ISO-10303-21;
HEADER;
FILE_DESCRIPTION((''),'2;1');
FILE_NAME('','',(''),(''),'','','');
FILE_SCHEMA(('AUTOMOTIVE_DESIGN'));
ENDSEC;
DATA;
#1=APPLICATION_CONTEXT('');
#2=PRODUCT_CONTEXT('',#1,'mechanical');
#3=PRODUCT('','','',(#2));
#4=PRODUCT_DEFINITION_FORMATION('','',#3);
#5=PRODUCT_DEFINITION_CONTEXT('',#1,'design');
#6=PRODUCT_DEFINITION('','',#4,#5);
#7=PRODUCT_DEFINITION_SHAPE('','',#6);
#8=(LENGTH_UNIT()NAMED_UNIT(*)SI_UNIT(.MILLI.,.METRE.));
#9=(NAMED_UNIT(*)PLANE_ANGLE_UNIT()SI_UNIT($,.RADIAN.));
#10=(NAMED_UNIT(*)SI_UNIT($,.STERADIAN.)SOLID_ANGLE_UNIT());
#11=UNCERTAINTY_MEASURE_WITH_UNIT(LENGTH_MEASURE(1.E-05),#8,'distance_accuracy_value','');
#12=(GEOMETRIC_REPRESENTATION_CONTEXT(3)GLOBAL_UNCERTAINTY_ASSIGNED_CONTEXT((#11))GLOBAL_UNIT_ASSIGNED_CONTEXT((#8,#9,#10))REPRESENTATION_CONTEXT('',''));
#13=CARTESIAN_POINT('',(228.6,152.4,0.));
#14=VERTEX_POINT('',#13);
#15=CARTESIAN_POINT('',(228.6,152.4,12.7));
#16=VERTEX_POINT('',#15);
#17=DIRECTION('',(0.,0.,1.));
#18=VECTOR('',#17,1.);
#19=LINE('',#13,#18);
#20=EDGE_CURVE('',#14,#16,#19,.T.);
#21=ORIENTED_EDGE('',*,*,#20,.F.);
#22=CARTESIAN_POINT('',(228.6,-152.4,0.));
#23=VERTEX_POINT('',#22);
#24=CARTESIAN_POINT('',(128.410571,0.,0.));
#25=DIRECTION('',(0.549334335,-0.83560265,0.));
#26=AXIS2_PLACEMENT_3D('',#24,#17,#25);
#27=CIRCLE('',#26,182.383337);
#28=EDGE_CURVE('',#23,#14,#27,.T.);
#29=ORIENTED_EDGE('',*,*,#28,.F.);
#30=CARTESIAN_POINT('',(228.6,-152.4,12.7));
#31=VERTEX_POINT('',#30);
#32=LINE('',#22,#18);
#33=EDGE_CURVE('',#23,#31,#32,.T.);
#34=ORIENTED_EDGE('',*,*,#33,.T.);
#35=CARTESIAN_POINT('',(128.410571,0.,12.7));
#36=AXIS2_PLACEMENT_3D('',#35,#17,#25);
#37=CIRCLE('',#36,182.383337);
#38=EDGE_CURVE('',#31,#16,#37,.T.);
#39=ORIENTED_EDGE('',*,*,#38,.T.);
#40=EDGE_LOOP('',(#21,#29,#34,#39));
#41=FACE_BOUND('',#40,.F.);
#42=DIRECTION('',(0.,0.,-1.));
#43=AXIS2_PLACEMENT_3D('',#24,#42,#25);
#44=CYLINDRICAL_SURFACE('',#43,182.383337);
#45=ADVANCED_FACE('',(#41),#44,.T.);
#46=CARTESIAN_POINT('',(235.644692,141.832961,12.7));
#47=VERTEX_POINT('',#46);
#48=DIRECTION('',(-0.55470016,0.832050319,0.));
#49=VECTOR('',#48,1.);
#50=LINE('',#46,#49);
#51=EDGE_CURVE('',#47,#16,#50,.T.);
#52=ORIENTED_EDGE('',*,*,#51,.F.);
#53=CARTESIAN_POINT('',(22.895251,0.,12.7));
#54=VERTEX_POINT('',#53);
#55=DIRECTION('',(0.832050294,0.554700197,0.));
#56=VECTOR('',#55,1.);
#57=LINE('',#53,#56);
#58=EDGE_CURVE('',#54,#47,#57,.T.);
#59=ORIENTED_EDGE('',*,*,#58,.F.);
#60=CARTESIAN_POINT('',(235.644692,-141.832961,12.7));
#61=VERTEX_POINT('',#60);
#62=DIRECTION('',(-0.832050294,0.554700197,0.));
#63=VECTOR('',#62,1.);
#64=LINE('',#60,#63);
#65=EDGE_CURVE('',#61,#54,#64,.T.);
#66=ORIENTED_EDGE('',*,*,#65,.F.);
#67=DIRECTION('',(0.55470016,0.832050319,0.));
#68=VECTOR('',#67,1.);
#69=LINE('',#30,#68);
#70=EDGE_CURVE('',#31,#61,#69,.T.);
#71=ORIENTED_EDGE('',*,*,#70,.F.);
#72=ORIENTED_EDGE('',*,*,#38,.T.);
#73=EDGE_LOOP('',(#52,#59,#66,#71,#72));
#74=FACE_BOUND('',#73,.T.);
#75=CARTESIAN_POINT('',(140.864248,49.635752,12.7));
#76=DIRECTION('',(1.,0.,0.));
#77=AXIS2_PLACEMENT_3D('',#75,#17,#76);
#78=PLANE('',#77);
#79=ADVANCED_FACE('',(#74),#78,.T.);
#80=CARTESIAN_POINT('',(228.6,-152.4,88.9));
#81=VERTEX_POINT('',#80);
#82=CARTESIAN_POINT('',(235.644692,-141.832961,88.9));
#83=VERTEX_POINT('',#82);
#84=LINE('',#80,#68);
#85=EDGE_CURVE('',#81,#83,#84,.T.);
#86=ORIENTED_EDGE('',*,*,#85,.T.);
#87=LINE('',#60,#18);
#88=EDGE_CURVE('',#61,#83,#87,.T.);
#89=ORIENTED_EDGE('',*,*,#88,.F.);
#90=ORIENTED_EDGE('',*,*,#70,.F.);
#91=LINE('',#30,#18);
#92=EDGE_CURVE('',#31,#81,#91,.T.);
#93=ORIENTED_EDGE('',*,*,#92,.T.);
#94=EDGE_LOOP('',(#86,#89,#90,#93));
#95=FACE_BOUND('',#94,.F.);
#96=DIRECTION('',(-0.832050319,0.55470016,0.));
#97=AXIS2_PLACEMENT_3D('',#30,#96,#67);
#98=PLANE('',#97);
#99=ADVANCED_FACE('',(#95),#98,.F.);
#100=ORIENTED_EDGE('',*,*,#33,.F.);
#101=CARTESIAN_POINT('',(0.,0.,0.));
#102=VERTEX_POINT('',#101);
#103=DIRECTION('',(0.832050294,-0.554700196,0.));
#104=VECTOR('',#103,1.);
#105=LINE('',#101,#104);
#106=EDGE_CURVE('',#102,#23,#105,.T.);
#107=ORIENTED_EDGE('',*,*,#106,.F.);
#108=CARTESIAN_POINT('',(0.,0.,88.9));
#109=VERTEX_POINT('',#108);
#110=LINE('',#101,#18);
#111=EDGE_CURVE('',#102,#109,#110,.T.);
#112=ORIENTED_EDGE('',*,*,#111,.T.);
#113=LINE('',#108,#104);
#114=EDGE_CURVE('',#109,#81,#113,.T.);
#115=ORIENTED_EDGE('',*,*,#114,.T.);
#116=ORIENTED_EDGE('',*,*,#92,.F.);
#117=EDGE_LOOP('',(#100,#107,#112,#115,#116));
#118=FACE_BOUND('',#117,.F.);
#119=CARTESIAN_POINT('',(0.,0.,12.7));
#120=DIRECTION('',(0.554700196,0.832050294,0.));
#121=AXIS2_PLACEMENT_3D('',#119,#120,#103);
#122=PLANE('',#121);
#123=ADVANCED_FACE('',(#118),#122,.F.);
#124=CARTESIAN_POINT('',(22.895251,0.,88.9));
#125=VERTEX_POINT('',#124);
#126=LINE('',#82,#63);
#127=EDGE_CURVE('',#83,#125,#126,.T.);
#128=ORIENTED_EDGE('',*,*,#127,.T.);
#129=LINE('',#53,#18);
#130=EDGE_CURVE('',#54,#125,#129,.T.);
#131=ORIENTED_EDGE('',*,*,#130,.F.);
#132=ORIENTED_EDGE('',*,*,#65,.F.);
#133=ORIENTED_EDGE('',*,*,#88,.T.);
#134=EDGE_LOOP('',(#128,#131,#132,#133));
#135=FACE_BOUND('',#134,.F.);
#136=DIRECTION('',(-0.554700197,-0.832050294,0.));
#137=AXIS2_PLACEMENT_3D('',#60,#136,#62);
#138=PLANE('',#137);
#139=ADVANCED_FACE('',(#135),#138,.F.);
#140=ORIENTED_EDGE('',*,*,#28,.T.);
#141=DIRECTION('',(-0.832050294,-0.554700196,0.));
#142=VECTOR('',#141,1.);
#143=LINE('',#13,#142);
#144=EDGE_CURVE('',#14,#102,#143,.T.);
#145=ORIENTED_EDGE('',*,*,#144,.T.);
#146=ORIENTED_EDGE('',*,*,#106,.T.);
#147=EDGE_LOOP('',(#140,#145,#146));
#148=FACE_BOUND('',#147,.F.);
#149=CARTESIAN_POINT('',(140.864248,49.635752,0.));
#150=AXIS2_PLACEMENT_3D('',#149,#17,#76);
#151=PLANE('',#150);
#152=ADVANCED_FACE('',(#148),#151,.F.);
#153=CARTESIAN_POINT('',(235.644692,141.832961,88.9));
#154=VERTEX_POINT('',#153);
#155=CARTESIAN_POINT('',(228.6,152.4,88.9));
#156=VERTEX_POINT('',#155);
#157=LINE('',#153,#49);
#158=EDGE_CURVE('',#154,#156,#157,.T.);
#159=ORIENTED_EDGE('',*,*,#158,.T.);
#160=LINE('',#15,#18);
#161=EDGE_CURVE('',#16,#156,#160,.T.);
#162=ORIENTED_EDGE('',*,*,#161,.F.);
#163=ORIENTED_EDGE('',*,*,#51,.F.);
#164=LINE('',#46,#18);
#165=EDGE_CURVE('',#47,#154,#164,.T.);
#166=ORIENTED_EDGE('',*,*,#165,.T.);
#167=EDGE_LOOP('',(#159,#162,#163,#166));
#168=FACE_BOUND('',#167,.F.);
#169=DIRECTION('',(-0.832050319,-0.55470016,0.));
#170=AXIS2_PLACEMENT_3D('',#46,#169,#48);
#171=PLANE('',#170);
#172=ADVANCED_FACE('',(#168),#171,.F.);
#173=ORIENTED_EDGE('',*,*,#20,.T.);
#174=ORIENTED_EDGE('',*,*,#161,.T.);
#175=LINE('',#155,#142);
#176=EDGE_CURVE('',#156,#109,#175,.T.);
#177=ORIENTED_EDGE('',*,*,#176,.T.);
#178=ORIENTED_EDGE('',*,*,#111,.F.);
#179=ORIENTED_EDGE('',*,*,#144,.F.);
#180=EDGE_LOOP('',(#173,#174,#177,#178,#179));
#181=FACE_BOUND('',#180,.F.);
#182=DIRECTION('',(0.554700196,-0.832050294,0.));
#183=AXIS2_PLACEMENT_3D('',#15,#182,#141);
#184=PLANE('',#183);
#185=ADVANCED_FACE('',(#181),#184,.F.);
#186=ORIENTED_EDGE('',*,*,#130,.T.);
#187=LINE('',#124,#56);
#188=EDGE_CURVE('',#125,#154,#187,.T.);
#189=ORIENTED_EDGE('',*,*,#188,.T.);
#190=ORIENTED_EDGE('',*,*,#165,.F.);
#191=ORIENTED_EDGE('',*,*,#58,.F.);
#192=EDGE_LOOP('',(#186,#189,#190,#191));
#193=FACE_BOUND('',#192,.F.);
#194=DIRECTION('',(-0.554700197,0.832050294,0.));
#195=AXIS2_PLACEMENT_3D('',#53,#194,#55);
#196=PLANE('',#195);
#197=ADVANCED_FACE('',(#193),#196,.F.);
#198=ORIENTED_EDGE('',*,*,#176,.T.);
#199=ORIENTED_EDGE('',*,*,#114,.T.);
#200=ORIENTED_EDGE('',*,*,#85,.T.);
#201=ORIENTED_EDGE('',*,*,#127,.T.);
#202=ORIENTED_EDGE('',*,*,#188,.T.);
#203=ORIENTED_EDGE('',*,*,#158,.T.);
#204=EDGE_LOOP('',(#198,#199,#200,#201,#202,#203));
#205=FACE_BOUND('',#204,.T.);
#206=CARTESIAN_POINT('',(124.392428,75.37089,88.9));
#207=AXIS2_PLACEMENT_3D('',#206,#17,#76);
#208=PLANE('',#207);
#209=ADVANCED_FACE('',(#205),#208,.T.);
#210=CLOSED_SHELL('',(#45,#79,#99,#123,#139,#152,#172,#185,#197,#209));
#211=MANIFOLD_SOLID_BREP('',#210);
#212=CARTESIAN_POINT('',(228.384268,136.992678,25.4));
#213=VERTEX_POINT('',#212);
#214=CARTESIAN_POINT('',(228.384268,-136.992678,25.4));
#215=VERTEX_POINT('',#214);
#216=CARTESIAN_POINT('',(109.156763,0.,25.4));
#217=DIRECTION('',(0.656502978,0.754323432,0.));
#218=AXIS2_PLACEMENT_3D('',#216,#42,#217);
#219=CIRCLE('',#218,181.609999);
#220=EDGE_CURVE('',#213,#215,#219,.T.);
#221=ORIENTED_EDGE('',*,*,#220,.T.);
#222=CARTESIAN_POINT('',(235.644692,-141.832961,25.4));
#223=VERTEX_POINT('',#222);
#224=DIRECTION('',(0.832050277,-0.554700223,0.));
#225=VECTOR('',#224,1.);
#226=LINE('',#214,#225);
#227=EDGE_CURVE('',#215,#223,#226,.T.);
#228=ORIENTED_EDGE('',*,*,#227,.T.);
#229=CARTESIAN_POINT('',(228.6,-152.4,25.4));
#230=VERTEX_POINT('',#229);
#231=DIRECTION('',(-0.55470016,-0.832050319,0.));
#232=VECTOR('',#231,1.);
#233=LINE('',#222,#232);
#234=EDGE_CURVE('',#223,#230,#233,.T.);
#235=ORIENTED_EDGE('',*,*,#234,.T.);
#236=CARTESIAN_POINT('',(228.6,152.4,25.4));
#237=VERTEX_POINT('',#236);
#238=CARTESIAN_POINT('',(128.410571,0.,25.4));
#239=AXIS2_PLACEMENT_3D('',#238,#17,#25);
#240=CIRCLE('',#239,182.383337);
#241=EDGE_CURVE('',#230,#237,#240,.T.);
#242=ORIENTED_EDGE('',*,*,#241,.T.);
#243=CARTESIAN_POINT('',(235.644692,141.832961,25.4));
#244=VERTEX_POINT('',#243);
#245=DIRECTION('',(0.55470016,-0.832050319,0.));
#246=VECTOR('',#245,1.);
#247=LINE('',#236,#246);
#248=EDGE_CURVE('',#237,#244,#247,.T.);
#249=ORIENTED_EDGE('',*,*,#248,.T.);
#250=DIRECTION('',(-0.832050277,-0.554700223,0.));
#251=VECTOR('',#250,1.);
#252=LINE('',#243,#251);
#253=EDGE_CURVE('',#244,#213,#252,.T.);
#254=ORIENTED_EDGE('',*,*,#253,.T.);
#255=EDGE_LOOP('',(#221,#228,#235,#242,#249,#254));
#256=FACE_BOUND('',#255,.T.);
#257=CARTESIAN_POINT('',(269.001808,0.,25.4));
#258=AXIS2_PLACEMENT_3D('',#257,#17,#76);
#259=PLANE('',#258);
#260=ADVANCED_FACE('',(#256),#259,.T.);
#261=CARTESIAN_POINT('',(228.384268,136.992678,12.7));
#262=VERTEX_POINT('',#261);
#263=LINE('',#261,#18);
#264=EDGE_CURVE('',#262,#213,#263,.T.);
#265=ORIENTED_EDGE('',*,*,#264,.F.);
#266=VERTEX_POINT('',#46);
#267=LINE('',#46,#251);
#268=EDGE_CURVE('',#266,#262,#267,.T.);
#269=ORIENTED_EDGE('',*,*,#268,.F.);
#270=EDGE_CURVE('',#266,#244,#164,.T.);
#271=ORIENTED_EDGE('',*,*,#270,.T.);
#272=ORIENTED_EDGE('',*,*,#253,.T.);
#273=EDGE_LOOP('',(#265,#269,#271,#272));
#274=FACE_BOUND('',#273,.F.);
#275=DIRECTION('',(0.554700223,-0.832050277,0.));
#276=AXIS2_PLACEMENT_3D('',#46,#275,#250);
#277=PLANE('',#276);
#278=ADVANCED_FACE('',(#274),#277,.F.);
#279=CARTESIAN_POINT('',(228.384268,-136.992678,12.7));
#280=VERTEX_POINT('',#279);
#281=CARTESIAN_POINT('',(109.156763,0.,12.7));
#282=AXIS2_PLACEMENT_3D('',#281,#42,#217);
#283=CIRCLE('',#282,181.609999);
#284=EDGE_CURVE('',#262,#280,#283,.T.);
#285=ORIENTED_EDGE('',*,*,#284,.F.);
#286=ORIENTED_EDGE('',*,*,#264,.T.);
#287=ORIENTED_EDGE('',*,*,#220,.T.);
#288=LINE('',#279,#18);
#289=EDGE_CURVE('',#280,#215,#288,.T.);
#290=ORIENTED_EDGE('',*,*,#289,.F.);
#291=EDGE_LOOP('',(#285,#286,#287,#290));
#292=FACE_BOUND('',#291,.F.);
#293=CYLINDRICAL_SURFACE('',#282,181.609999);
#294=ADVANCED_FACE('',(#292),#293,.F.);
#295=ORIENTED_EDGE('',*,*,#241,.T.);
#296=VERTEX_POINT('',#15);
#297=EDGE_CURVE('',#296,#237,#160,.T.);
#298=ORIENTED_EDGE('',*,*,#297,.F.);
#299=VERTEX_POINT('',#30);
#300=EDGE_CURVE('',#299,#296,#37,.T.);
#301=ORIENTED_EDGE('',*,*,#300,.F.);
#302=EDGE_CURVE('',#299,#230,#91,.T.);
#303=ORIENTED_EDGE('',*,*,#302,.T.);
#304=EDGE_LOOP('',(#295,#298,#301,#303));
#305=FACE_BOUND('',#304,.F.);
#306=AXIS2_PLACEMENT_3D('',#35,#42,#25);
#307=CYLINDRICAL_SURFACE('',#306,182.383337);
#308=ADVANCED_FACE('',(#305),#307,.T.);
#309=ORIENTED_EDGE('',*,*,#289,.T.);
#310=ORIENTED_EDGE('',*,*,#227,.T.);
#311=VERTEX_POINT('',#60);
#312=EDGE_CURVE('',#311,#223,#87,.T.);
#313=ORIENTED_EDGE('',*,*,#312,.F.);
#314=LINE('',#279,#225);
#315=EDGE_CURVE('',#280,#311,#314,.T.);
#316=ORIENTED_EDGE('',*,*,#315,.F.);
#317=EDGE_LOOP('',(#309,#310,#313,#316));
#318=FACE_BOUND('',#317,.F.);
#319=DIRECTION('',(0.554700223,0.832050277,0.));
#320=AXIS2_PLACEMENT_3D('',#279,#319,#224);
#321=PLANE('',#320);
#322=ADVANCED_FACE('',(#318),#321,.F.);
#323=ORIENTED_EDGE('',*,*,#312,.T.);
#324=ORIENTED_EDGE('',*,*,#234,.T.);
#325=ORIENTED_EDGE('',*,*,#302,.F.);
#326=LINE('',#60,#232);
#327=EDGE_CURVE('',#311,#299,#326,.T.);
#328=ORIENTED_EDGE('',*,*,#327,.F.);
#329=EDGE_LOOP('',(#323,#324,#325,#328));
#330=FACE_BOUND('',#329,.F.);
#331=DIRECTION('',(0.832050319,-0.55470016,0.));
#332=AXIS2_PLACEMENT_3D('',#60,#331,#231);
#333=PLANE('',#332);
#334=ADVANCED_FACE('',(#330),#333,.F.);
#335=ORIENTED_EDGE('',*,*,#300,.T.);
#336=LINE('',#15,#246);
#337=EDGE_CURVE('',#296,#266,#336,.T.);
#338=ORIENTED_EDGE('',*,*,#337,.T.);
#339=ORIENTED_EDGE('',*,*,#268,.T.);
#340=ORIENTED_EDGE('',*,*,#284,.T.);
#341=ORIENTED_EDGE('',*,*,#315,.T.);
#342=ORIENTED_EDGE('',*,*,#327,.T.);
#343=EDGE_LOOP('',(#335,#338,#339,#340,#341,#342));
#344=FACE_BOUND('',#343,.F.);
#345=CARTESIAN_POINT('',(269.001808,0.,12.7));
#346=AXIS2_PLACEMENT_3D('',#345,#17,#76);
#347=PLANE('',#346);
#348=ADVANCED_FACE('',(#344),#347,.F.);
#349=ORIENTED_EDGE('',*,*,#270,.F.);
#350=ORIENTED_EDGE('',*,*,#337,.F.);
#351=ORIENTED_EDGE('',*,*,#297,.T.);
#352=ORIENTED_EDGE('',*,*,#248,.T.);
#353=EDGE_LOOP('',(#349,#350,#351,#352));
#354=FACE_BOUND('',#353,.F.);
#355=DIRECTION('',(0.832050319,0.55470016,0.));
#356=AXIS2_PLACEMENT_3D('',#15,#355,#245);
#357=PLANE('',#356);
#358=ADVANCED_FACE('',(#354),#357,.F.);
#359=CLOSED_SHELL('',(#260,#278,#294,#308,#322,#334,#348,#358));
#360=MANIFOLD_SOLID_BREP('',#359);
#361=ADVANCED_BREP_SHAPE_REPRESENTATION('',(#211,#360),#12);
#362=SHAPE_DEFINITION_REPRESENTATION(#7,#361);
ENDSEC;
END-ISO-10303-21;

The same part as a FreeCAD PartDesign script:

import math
import FreeCAD as App
import Part
import Sketcher

V = App.Vector
Q = App.Units.Quantity


def add_polygon(sketch, points):
    """Adds a closed chain of lines whose ends are joined by coincident constraints."""
    first, n = sketch.GeometryCount, len(points)
    for a, b in zip(points, points[1:] + points[:1]):
        sketch.addGeometry(Part.LineSegment(App.Vector(*a, 0), App.Vector(*b, 0)), False)
    for i in range(n):
        sketch.addConstraint(Sketcher.Constraint("Coincident", first + i, 2, first + (i + 1) % n, 1))

doc = App.newDocument("Part")
body = doc.addObject("PartDesign::Body", "Body")

# Sketch on XY plane
sketch1 = body.newObject("Sketcher::SketchObject", "Sketch")
sketch1.AttachmentSupport = (doc.getObject("XY_Plane"), [""])
sketch1.MapMode = "FlatFace"
sketch1.addGeometry([
    Part.LineSegment(V(229, 152, 0), V(0, 0, 0)),
    Part.LineSegment(V(0, 0, 0), V(229, -152, 0)),
    Part.ArcOfCircle(Part.Circle(V(128, 0, 0), V(0, 0, 1), 182), math.radians(-57), math.radians(57)),
], False)
sketch1.addConstraint([
    Sketcher.Constraint("Coincident", 0, 2, 1, 1),
    Sketcher.Constraint("Coincident", 1, 2, 2, 1),
    Sketcher.Constraint("Coincident", 2, 2, 0, 1),
    Sketcher.Constraint("Coincident", 0, 2, -1, 1),
    Sketcher.Constraint("Symmetric", 1, 2, 2, 2, -1),
    Sketcher.Constraint("DistanceX", -1, 1, 1, 2, Q("9 in")),
    Sketcher.Constraint("DistanceY", 1, 2, -1, 1, Q("6 in")),
    Sketcher.Constraint("Radius", 2, Q("182.383337 mm")),
])
pad1 = body.newObject("PartDesign::Pad", "Pad")
pad1.Profile = sketch1
pad1.Length = Q("0.5 in")

# Sketch on XY plane
sketch2 = body.newObject("Sketcher::SketchObject", "Sketch001")
sketch2.AttachmentSupport = (doc.getObject("XY_Plane"), [""])
sketch2.MapMode = "FlatFace"
sketch2.AttachmentOffset = App.Placement(V(0, 0, 0.5 * 25.4), App.Rotation())
add_polygon(sketch2, [(236, 142), (229, 152), (0, 0), (229, -152), (236, -142), (23, 0)])  # lines 0-5
sketch2.addConstraint([
    Sketcher.Constraint("Coincident", 1, 2, -1, 1),
    Sketcher.Constraint("Symmetric", 0, 2, 2, 2, -1),
    Sketcher.Constraint("Symmetric", 3, 2, 5, 2, -1),
    Sketcher.Constraint("PointOnObject", 4, 2, -1),
    Sketcher.Constraint("Perpendicular", 0, 1),
    Sketcher.Constraint("Perpendicular", 3, 4),
    Sketcher.Constraint("DistanceX", -1, 1, 0, 2, Q("9 in")),
    Sketcher.Constraint("DistanceY", -1, 1, 0, 2, Q("6 in")),
    Sketcher.Constraint("Distance", 0, Q("0.5 in")),
])
pad2 = body.newObject("PartDesign::Pad", "Pad001")
pad2.Profile = sketch2
pad2.Length = Q("3 in")
body2 = doc.addObject("PartDesign::Body", "Body001")

# Sketch on XY plane
sketch3 = body2.newObject("Sketcher::SketchObject", "Sketch002")
sketch3.AttachmentSupport = (doc.getObject("XY_Plane001"), [""])
sketch3.MapMode = "FlatFace"
sketch3.AttachmentOffset = App.Placement(V(0, 0, 0.5 * 25.4), App.Rotation())
sketch3.addGeometry([
    Part.LineSegment(V(236, -142, 0), V(229, -152, 0)),  # 0
    Part.ArcOfCircle(Part.Circle(V(128, 0, 0), V(0, 0, 1), 182), math.radians(-57), math.radians(57)),  # 1
    Part.LineSegment(V(229, 152, 0), V(236, 142, 0)),  # 2
    Part.LineSegment(V(236, 142, 0), V(228, 137, 0)),  # 3
    Part.ArcOfCircle(Part.Circle(V(109, 0, 0), V(0, 0, 1), 182), math.radians(-49), math.radians(49)),  # 4
    Part.LineSegment(V(228, -137, 0), V(236, -142, 0)),  # 5
], False)
sketch3.addConstraint([
    Sketcher.Constraint("Coincident", 0, 2, 1, 1),
    Sketcher.Constraint("Coincident", 1, 2, 2, 1),
    Sketcher.Constraint("Coincident", 2, 2, 3, 1),
    Sketcher.Constraint("Coincident", 3, 2, 4, 2),
    Sketcher.Constraint("Coincident", 4, 1, 5, 1),
    Sketcher.Constraint("Coincident", 5, 2, 0, 1),
    Sketcher.Constraint("Symmetric", 0, 2, 1, 2, -1),
    Sketcher.Constraint("Symmetric", 3, 2, 4, 1, -1),
    Sketcher.Constraint("Symmetric", 2, 2, 5, 2, -1),
    Sketcher.Constraint("Perpendicular", 2, 3),
    Sketcher.Constraint("Radius", 4, Q("7.15 in")),
    Sketcher.Constraint("DistanceX", -1, 1, 0, 2, Q("9 in")),
    Sketcher.Constraint("DistanceY", 0, 2, -1, 1, Q("6 in")),
    Sketcher.Constraint("Distance", 0, Q("0.5 in")),
    Sketcher.Constraint("Radius", 1, Q("182.383337 mm")),
    Sketcher.Constraint("DistanceX", -1, 1, 2, 2, Q("235.644692 mm")),
    Sketcher.Constraint("DistanceX", -1, 1, 3, 2, Q("228.384268 mm")),
])
pad3 = body2.newObject("PartDesign::Pad", "Pad002")
pad3.Profile = sketch3
pad3.Length = Q("0.5 in")

doc.recompute()
